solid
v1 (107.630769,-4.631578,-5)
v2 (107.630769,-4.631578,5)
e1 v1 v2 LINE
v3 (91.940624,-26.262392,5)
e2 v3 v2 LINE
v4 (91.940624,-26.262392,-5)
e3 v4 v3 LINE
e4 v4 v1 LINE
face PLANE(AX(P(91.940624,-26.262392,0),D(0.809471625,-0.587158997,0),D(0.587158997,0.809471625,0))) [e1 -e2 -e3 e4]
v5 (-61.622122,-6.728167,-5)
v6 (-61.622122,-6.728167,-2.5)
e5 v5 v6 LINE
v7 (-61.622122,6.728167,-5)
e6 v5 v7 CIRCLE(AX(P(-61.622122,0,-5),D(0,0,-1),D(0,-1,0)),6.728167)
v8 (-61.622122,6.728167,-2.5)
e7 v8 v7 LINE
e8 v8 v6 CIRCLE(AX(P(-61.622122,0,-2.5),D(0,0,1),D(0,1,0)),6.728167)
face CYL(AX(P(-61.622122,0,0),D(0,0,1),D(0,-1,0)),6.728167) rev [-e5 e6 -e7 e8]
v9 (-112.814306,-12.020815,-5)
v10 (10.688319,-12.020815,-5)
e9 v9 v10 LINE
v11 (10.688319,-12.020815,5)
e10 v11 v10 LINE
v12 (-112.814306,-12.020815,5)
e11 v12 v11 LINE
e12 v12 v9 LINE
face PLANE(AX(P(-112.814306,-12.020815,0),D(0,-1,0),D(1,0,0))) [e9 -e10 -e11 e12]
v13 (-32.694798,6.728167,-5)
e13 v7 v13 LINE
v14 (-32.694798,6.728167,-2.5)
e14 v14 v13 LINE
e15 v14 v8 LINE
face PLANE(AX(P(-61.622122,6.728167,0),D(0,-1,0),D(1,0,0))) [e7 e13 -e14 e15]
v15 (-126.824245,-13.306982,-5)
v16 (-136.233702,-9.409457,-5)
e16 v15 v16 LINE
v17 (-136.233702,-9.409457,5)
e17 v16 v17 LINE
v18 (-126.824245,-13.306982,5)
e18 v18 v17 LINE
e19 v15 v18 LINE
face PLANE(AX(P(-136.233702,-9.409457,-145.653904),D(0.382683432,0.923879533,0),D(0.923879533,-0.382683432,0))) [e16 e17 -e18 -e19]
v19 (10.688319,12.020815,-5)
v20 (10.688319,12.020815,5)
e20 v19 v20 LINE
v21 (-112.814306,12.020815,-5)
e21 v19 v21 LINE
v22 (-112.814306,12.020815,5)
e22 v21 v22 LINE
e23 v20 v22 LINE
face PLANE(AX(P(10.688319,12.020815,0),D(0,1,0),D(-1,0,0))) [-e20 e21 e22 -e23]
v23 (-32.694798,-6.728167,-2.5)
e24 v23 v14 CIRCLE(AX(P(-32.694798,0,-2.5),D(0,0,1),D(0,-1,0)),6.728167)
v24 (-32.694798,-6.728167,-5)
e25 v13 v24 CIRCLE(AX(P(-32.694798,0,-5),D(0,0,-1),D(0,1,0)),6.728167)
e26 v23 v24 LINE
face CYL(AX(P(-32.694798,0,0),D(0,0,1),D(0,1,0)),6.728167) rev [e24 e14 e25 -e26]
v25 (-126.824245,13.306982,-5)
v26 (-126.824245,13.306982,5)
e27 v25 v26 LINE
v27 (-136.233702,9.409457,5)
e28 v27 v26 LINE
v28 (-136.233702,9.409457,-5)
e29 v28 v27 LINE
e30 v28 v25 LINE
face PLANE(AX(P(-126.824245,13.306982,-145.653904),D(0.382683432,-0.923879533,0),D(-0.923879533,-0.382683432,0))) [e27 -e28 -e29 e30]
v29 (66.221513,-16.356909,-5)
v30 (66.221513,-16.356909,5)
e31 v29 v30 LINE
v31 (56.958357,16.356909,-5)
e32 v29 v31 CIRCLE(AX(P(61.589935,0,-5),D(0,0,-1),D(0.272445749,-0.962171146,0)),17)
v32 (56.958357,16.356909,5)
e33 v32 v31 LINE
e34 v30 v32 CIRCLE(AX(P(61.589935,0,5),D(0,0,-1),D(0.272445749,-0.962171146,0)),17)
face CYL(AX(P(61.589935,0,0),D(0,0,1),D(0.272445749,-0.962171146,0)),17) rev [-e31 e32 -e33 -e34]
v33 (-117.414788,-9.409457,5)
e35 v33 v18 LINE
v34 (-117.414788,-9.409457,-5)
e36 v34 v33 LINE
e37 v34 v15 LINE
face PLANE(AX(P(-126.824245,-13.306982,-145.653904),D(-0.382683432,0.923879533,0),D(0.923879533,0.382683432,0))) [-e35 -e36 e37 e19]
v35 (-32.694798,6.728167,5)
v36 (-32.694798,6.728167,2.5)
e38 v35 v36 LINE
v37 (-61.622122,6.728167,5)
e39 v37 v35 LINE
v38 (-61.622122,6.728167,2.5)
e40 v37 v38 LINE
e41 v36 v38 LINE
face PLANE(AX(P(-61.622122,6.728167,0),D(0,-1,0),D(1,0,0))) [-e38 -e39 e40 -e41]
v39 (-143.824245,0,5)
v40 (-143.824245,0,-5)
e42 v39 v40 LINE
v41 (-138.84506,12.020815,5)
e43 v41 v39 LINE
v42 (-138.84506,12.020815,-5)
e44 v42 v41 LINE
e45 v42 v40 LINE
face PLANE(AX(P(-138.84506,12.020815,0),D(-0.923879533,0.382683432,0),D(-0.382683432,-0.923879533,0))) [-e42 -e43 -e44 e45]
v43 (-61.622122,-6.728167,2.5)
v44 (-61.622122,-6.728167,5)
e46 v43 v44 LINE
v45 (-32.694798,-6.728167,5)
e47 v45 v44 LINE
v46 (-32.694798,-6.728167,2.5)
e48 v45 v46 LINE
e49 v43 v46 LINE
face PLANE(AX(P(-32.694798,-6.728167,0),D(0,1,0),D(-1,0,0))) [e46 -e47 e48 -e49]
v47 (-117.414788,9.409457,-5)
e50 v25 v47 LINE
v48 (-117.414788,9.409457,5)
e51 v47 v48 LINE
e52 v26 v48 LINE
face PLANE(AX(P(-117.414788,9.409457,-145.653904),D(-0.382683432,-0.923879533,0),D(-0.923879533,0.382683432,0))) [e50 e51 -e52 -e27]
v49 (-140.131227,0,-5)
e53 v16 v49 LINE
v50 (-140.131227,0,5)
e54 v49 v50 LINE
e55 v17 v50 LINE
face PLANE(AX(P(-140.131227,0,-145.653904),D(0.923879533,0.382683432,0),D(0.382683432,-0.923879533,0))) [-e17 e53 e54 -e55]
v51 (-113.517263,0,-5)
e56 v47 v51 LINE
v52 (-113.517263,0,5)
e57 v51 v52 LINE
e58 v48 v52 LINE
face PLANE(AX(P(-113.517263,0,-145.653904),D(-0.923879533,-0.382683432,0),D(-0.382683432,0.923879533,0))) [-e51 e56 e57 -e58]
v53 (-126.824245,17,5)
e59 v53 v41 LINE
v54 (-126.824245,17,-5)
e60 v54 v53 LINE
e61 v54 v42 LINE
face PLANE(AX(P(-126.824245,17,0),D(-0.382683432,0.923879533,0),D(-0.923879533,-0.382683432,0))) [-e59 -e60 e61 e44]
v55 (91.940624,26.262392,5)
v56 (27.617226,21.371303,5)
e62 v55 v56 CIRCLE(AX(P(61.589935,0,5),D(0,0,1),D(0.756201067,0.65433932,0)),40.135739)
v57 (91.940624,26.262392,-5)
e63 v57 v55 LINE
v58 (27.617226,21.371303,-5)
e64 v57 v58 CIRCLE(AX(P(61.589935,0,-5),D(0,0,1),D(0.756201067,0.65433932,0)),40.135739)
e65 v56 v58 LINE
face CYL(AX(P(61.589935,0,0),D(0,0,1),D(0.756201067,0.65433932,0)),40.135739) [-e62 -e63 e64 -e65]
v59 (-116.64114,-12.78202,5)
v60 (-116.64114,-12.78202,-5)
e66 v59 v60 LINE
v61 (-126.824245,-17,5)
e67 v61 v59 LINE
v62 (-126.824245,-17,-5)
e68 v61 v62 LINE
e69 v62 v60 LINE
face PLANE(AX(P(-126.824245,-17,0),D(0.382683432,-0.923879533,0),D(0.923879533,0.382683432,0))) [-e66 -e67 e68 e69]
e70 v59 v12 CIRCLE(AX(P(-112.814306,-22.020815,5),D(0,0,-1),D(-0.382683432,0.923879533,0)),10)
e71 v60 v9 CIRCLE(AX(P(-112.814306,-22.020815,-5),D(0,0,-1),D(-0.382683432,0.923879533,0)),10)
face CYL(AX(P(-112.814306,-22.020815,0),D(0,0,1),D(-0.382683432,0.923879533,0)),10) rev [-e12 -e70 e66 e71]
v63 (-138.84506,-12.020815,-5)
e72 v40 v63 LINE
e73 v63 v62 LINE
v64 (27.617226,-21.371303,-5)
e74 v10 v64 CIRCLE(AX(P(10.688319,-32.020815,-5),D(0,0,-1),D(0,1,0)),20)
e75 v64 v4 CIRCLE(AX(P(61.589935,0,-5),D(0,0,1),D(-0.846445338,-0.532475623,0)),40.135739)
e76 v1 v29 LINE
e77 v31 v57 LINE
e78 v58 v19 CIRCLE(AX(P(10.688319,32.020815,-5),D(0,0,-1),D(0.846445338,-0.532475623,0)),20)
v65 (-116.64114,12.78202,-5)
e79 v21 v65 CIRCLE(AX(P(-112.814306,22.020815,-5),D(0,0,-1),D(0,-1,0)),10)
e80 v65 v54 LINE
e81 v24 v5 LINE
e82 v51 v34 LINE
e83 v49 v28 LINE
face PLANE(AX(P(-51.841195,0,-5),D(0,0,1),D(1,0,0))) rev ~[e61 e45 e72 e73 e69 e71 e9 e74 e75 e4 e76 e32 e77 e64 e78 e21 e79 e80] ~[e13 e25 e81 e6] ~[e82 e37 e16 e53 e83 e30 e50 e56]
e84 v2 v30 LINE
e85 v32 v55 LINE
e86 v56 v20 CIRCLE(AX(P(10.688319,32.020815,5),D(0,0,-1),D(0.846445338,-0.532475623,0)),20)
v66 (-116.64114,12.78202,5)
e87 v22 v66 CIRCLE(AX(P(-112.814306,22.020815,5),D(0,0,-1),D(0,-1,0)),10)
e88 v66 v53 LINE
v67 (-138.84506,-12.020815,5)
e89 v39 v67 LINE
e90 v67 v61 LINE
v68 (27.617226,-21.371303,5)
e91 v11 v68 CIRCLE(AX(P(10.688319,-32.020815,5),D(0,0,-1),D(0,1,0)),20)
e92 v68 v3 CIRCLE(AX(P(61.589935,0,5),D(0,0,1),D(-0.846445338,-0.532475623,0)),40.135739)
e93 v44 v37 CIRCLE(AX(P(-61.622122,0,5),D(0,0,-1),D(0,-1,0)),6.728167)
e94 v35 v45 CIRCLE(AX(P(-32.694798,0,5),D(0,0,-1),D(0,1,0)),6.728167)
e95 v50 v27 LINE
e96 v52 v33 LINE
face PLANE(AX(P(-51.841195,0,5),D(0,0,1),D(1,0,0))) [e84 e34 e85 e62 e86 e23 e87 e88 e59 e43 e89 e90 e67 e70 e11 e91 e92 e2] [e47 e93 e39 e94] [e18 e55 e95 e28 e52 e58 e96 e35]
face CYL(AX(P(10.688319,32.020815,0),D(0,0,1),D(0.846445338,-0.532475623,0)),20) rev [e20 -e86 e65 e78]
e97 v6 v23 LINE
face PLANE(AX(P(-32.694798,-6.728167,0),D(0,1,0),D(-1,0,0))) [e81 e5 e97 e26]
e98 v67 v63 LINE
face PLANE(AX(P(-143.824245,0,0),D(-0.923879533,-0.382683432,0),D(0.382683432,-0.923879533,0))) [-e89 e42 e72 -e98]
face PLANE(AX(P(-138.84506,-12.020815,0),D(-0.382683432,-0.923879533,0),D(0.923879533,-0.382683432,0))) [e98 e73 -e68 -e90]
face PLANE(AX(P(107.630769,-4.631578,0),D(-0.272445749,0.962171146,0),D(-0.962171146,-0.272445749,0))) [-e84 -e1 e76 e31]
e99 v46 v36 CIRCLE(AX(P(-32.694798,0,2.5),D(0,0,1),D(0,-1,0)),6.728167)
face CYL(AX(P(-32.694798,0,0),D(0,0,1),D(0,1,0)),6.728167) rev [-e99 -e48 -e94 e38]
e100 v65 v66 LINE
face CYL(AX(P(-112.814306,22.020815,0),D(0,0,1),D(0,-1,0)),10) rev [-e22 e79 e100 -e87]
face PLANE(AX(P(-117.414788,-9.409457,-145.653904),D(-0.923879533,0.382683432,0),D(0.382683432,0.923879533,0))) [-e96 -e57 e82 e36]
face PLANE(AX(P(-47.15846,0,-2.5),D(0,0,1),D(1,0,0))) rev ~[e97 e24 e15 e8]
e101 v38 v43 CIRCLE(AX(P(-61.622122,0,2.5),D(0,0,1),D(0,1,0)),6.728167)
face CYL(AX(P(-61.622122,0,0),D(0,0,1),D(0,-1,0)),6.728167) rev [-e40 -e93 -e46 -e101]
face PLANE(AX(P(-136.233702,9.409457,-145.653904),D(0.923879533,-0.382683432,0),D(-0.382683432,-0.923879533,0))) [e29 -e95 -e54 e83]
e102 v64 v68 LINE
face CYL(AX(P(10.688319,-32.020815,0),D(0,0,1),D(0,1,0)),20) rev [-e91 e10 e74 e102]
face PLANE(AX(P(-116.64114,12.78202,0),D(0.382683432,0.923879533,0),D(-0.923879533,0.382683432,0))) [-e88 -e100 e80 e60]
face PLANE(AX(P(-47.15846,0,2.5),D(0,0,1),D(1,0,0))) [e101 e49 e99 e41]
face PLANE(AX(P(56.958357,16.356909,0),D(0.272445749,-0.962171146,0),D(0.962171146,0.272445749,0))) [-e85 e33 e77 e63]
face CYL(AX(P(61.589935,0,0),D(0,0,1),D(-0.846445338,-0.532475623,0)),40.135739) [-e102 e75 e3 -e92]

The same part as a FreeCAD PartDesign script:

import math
import FreeCAD as App
import Part
import Sketcher
from FreeCAD import Vector
Q = App.Units.Quantity

doc = App.newDocument("Part")
body = doc.addObject("PartDesign::Body", "Body")

# Sketch on XY plane
sketch1 = doc.addObject("Sketcher::SketchObject", "Sketch")
body.addObject(sketch1)
sketch1.AttachmentSupport = (doc.XY_Plane, [""])
sketch1.MapMode = "FlatFace"
sketch1.addGeometry([
    Part.LineSegment(Vector(57, 16.4, 0), Vector(91.9, 26.3, 0)),  # 0
    Part.ArcOfCircle(Part.Circle(Vector(61.6, 0, 0), Vector(0, 0, 1), 40.1), math.radians(41), math.radians(148)),  # 1
    Part.ArcOfCircle(Part.Circle(Vector(10.7, 32, 0), Vector(0, 0, 1), 20), math.radians(-90), math.radians(-32)),  # 2
    Part.LineSegment(Vector(10.7, 12, 0), Vector(-112.8, 12, 0)),  # 3
    Part.ArcOfCircle(Part.Circle(Vector(-112.8, 22, 0), Vector(0, 0, 1), 10), math.radians(-112), math.radians(-90)),  # 4
    Part.LineSegment(Vector(-116.6, 12.8, 0), Vector(-126.8, 17, 0)),  # 5
    Part.LineSegment(Vector(-126.8, 17, 0), Vector(-138.8, 12, 0)),  # 6
    Part.LineSegment(Vector(-138.8, 12, 0), Vector(-143.8, 0, 0)),  # 7
    Part.LineSegment(Vector(-143.8, 0, 0), Vector(-138.8, -12, 0)),  # 8
    Part.LineSegment(Vector(-138.8, -12, 0), Vector(-126.8, -17, 0)),  # 9
    Part.LineSegment(Vector(-126.8, -17, 0), Vector(-116.6, -12.8, 0)),  # 10
    Part.ArcOfCircle(Part.Circle(Vector(-112.8, -22, 0), Vector(0, 0, 1), 10), math.radians(90), math.radians(112)),  # 11
    Part.LineSegment(Vector(-112.8, -12, 0), Vector(10.7, -12, 0)),  # 12
    Part.ArcOfCircle(Part.Circle(Vector(10.7, -32, 0), Vector(0, 0, 1), 20), math.radians(32), math.radians(90)),  # 13
    Part.ArcOfCircle(Part.Circle(Vector(61.6, 0, 0), Vector(0, 0, 1), 40.1), math.radians(-148), math.radians(-41)),  # 14
    Part.LineSegment(Vector(91.9, -26.3, 0), Vector(107.6, -4.6, 0)),  # 15
    Part.LineSegment(Vector(107.6, -4.6, 0), Vector(66.2, -16.4, 0)),  # 16
    Part.ArcOfCircle(Part.Circle(Vector(61.6, 0, 0), Vector(0, 0, 1), 17), math.radians(106), math.radians(286)),  # 17
    Part.ArcOfCircle(Part.Circle(Vector(-61.6, 0, 0), Vector(0, 0, 1), 6.7), math.radians(90), math.radians(270)),  # 18
    Part.LineSegment(Vector(-61.6, 6.7, 0), Vector(-32.7, 6.7, 0)),  # 19
    Part.ArcOfCircle(Part.Circle(Vector(-32.7, 0, 0), Vector(0, 0, 1), 6.7), math.radians(-90), math.radians(90)),  # 20
    Part.LineSegment(Vector(-32.7, -6.7, 0), Vector(-61.6, -6.7, 0)),  # 21
], False)
sketch1.addConstraint([
    Sketcher.Constraint("Coincident", 0, 2, 1, 1),
    Sketcher.Constraint("Tangent", 1, 2, 2, 2),
    Sketcher.Constraint("Tangent", 2, 1, 3, 1),
    Sketcher.Constraint("Tangent", 3, 2, 4, 2),
    Sketcher.Constraint("Tangent", 4, 1, 5, 1),
    Sketcher.Constraint("Coincident", 5, 2, 6, 1),
    Sketcher.Constraint("Coincident", 6, 2, 7, 1),
    Sketcher.Constraint("Coincident", 7, 2, 8, 1),
    Sketcher.Constraint("Coincident", 8, 2, 9, 1),
    Sketcher.Constraint("Coincident", 9, 2, 10, 1),
    Sketcher.Constraint("Tangent", 10, 2, 11, 2),
    Sketcher.Constraint("Tangent", 11, 1, 12, 1),
    Sketcher.Constraint("Tangent", 12, 2, 13, 2),
    Sketcher.Constraint("Tangent", 13, 1, 14, 1),
    Sketcher.Constraint("Coincident", 14, 2, 15, 1),
    Sketcher.Constraint("Coincident", 15, 2, 16, 1),
    Sketcher.Constraint("Tangent", 16, 2, 17, 2),
    Sketcher.Constraint("Tangent", 17, 1, 0, 1),
    Sketcher.Constraint("Tangent", 18, 1, 19, 1),
    Sketcher.Constraint("Tangent", 19, 2, 20, 2),
    Sketcher.Constraint("Tangent", 20, 1, 21, 1),
    Sketcher.Constraint("Tangent", 21, 2, 18, 2),
    Sketcher.Constraint("Horizontal", 3),
    Sketcher.Constraint("Horizontal", 12),
    Sketcher.Constraint("Horizontal", 19),
    Sketcher.Constraint("Horizontal", 21),
    Sketcher.Constraint("Coincident", 14, 3, 1, 3),
    Sketcher.Constraint("Coincident", 17, 3, 1, 3),
    Sketcher.Constraint("Equal", 4, 11),
    Sketcher.Constraint("Equal", 2, 13),
    Sketcher.Constraint("Equal", 1, 14),
    Sketcher.Constraint("Symmetric", 4, 3, 11, 3, -1),
    Sketcher.Constraint("Symmetric", 6, 2, 8, 2, -1),
    Sketcher.Constraint("Symmetric", 5, 2, 9, 2, -1),
    Sketcher.Constraint("Symmetric", 0, 2, 14, 2, -1),
    Sketcher.Constraint("PointOnObject", 18, 3, -1),
    Sketcher.Constraint("PointOnObject", 7, 2, -1),
    Sketcher.Constraint("Perpendicular", 5, 7),
    Sketcher.Constraint("Perpendicular", 6, 8),
    Sketcher.Constraint("Parallel", 0, 16),
    Sketcher.Constraint("Horizontal", 3, 2, 6, 2),
    Sketcher.Constraint("Equal", 6, 7),
    Sketcher.Constraint("Radius", 2, 20.0),
    Sketcher.Constraint("Radius", 4, 10.0),
    Sketcher.Constraint("Radius", 17, 17.0),
    Sketcher.Constraint("DistanceY", -1, 1, 5, 2, 17.0),
    Sketcher.Constraint("Angle", 5, Q("157.5 deg")),
    Sketcher.Constraint("Radius", 1, 40.135739),
    Sketcher.Constraint("Radius", 18, 6.728167),
    Sketcher.Constraint("DistanceX", 20, 3, -1, 1, 32.694798),
    Sketcher.Constraint("DistanceX", 13, 1, 14, 2, 64.323398),
    Sketcher.Constraint("Distance", 15, 26.722141),
    Sketcher.Constraint("DistanceX", 3, 2, 3, 1, 123.502625),
    Sketcher.Constraint("DistanceX", 19, 1, 19, 2, 28.927324),
    Sketcher.Constraint("DistanceX", -1, 1, 2, 3, 10.688319),
])
pad1 = doc.addObject("PartDesign::Pad", "Pad")
body.addObject(pad1)
pad1.Profile = sketch1
pad1.Length = 10
pad1.Midplane = True

# Sketch on XY plane
sketch2 = doc.addObject("Sketcher::SketchObject", "Sketch001")
body.addObject(sketch2)
sketch2.AttachmentSupport = (doc.XY_Plane, [""])
sketch2.MapMode = "FlatFace"
sketch2.addGeometry([
    Part.LineSegment(Vector(-62, -7, 0), Vector(-33, -7, 0)),
    Part.ArcOfCircle(Part.Circle(Vector(-33, 0, 0), Vector(0, 0, 1), 7), math.radians(-90), math.radians(90)),
    Part.LineSegment(Vector(-33, 7, 0), Vector(-62, 7, 0)),
    Part.ArcOfCircle(Part.Circle(Vector(-62, 0, 0), Vector(0, 0, 1), 7), math.radians(90), math.radians(270)),
], False)
sketch2.addConstraint([
    Sketcher.Constraint("Tangent", 0, 2, 1, 1),
    Sketcher.Constraint("Tangent", 1, 2, 2, 1),
    Sketcher.Constraint("Tangent", 2, 2, 3, 1),
    Sketcher.Constraint("Tangent", 3, 2, 0, 1),
    Sketcher.Constraint("Horizontal", 0),
    Sketcher.Constraint("Horizontal", 2),
    Sketcher.Constraint("PointOnObject", 1, 3, -1),
    Sketcher.Constraint("Radius", 1, 6.728167),
    Sketcher.Constraint("DistanceX", 1, 3, -1, 1, 32.694798),
    Sketcher.Constraint("DistanceX", 0, 1, 0, 2, 28.927324),
])
pad2 = doc.addObject("PartDesign::Pad", "Pad001")
body.addObject(pad2)
pad2.Profile = sketch2
pad2.Length = 5
pad2.Midplane = True

# Sketch on XY plane
sketch3 = doc.addObject("Sketcher::SketchObject", "Sketch002")
body.addObject(sketch3)
sketch3.AttachmentSupport = (doc.XY_Plane, [""])
sketch3.MapMode = "FlatFace"
sketch3.AttachmentOffset = App.Placement(Vector(0, 0, 5), App.Rotation())
sketch3.addGeometry([
    Part.LineSegment(Vector(-127, 13, 0), Vector(-136, 9, 0)),  # 0
    Part.LineSegment(Vector(-136, 9, 0), Vector(-140, 0, 0)),  # 1
    Part.LineSegment(Vector(-140, 0, 0), Vector(-136, -9, 0)),  # 2
    Part.LineSegment(Vector(-136, -9, 0), Vector(-127, -13, 0)),  # 3
    Part.LineSegment(Vector(-127, -13, 0), Vector(-117, -9, 0)),  # 4
    Part.LineSegment(Vector(-117, -9, 0), Vector(-114, 0, 0)),  # 5
    Part.LineSegment(Vector(-114, 0, 0), Vector(-117, 9, 0)),  # 6
    Part.LineSegment(Vector(-117, 9, 0), Vector(-127, 13, 0)),  # 7
], False)
sketch3.addConstraint([
    Sketcher.Constraint("Coincident", 0, 2, 1, 1),
    Sketcher.Constraint("Coincident", 1, 2, 2, 1),
    Sketcher.Constraint("Coincident", 2, 2, 3, 1),
    Sketcher.Constraint("Coincident", 3, 2, 4, 1),
    Sketcher.Constraint("Coincident", 4, 2, 5, 1),
    Sketcher.Constraint("Coincident", 5, 2, 6, 1),
    Sketcher.Constraint("Coincident", 6, 2, 7, 1),
    Sketcher.Constraint("Coincident", 7, 2, 0, 1),
    Sketcher.Constraint("Symmetric", 0, 2, 2, 2, -1),
    Sketcher.Constraint("Symmetric", 4, 2, 6, 2, -1),
    Sketcher.Constraint("Symmetric", 3, 2, 7, 2, -1),
    Sketcher.Constraint("PointOnObject", 1, 2, -1),
    Sketcher.Constraint("PointOnObject", 5, 2, -1),
    Sketcher.Constraint("Perpendicular", 0, 2),
    Sketcher.Constraint("Perpendicular", 2, 4),
    Sketcher.Constraint("Perpendicular", 3, 5),
    Sketcher.Constraint("Horizontal", 2, 2, 4, 2),
    Sketcher.Constraint("Equal", 0, 1),
    Sketcher.Constraint("Angle", 0, Q("-157.5 deg")),
    Sketcher.Constraint("DistanceX", 0, 2, -1, 1, 136.233702),
    Sketcher.Constraint("DistanceY", 3, 2, -1, 1, 13.306982),
])
pocket1 = doc.addObject("PartDesign::Pocket", "Pocket")
body.addObject(pocket1)
pocket1.Profile = sketch3
pocket1.Type = "ThroughAll"
pocket1.Midplane = True

doc.recompute()
